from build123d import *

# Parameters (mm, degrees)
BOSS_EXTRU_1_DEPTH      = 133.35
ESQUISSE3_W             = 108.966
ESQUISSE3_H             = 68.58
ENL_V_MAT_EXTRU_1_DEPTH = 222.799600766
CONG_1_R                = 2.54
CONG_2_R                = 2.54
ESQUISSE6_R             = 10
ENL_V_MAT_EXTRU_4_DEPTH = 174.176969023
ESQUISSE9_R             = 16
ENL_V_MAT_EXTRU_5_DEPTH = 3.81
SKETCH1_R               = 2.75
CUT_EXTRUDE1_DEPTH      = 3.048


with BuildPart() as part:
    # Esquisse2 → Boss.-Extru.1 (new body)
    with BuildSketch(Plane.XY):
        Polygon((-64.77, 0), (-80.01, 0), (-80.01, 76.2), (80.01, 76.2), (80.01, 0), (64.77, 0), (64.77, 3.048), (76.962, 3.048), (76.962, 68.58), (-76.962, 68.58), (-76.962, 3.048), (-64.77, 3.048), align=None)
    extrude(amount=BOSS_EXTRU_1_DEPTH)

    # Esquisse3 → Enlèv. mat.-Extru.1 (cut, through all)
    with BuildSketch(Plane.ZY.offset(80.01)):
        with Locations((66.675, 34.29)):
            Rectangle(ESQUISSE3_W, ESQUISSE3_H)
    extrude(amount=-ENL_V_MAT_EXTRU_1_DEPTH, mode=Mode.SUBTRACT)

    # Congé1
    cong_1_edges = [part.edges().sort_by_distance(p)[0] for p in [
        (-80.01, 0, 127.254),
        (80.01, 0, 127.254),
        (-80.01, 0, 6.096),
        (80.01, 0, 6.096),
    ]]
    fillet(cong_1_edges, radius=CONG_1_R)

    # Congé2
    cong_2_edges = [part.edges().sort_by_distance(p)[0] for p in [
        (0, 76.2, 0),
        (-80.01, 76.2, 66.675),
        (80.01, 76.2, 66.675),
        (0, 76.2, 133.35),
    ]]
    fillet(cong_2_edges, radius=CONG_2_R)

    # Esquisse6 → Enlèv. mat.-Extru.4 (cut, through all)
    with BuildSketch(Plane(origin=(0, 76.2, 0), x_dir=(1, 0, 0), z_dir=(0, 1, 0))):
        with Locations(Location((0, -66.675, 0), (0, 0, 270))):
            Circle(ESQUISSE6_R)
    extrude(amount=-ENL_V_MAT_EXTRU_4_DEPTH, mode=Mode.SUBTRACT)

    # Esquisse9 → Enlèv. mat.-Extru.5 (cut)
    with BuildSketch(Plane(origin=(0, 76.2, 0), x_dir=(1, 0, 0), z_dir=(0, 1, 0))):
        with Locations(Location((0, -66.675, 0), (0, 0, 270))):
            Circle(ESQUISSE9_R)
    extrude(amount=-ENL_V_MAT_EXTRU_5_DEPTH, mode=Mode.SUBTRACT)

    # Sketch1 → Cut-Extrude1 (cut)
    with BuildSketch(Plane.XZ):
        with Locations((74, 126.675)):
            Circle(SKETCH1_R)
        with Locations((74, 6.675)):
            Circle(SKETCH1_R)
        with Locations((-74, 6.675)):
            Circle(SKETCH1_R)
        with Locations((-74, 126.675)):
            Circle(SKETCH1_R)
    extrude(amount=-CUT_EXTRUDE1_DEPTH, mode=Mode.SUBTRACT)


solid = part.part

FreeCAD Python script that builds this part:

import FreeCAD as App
import Part
import Sketcher

V = App.Vector
Q = App.Units.Quantity


def edges_at(feature, points):
    """Names of the edges that pass closest to the given points."""
    edges = feature.Shape.Edges
    near = lambda p: min(range(len(edges)), key=lambda i: edges[i].distToShape(Part.Vertex(*p))[0])
    return sorted({f"Edge{near(p) + 1}" for p in points})


def add_polygon(sketch, points):
    """Adds a closed chain of lines whose ends are joined by coincident constraints."""
    first, n = sketch.GeometryCount, len(points)
    for a, b in zip(points, points[1:] + points[:1]):
        sketch.addGeometry(Part.LineSegment(App.Vector(*a, 0), App.Vector(*b, 0)), False)
    for i in range(n):
        sketch.addConstraint(Sketcher.Constraint("Coincident", first + i, 2, first + (i + 1) % n, 1))

doc = App.newDocument("Part")
body = doc.addObject("PartDesign::Body", "Body")

sketch1 = body.newObject("Sketcher::SketchObject", "Sketch")
sketch1.AttachmentSupport = (doc.getObject("XY_Plane"), [""])
sketch1.MapMode = "FlatFace"
add_polygon(sketch1, [(-80.01, 0), (-64.77, 0), (-64.77, 3.048), (-76.962, 3.048), (-76.962, 68.58), (76.962, 68.58), (76.962, 3.048), (64.77, 3.048), (64.77, 0), (80.01, 0), (80.01, 76.2), (-80.01, 76.2)])
sketch1.addConstraint([
    Sketcher.Constraint("Horizontal", 0),
    Sketcher.Constraint("Vertical", 1),
    Sketcher.Constraint("Horizontal", 2),
    Sketcher.Constraint("Vertical", 3),
    Sketcher.Constraint("Horizontal", 4),
    Sketcher.Constraint("Vertical", 5),
    Sketcher.Constraint("Horizontal", 6),
    Sketcher.Constraint("Vertical", 7),
    Sketcher.Constraint("Horizontal", 8),
    Sketcher.Constraint("Vertical", 9),
    Sketcher.Constraint("Horizontal", 10),
    Sketcher.Constraint("Vertical", 11),
    Sketcher.Constraint("Symmetric", 0, 2, 7, 2, -1, 1),
    Sketcher.Constraint("Symmetric", 2, 2, 5, 2, -2),
    Sketcher.Constraint("Symmetric", 8, 2, 11, 2, -2),
    Sketcher.Constraint("DistanceY", 9, 1, 9, 2, Q("3 in")),
    Sketcher.Constraint("DistanceX", 0, 1, 0, 2, Q("0.6 in")),
    Sketcher.Constraint("DistanceX", 10, 2, 10, 1, Q("6.3 in")),
    Sketcher.Constraint("DistanceX", 2, 2, 2, 1, Q("0.48 in")),
    Sketcher.Constraint("DistanceY", 1, 1, 1, 2, Q("0.12 in")),
    Sketcher.Constraint("DistanceY", 3, 1, 3, 2, Q("2.58 in")),
])
pad1 = body.newObject("PartDesign::Pad", "Pad")
pad1.Profile = sketch1
pad1.Length = Q("5.25 in")

sketch2 = body.newObject("Sketcher::SketchObject", "Sketch001")
sketch2.AttachmentSupport = (doc.getObject("YZ_Plane"), [""])
sketch2.MapMode = "FlatFace"
sketch2.AttachmentOffset = App.Placement(V(0, 0, -3.15 * 25.4), App.Rotation())
add_polygon(sketch2, [(68.58, 12.192), (0, 12.192), (0, 121.158), (68.58, 121.158)])
sketch2.addConstraint([
    Sketcher.Constraint("Horizontal", 0),
    Sketcher.Constraint("Vertical", 1),
    Sketcher.Constraint("Horizontal", 2),
    Sketcher.Constraint("Vertical", 3),
    Sketcher.Constraint("PointOnObject", 0, 2, -2),
    Sketcher.Constraint("DistanceX", 0, 2, 0, 1, Q("2.7 in")),
    Sketcher.Constraint("DistanceY", 1, 1, 1, 2, Q("4.29 in")),
    Sketcher.Constraint("DistanceY", -1, 1, 0, 2, Q("0.48 in")),
])
pocket1 = body.newObject("PartDesign::Pocket", "Pocket")
pocket1.Profile = sketch2
pocket1.Type = "ThroughAll"
pocket1.Reversed = True
doc.recompute()

fillet = body.newObject("PartDesign::Fillet", "Fillet")
fillet.Base = (pocket1, edges_at(pocket1, [
    (-80.01, 0, 127.254),
    (80.01, 0, 127.254),
    (-80.01, 0, 6.096),
    (80.01, 0, 6.096),
]))
fillet.Radius = Q("0.1 in")
doc.recompute()

fillet2 = body.newObject("PartDesign::Fillet", "Fillet001")
fillet2.Base = (fillet, edges_at(fillet, [
    (0, 76.2, 0),
    (-80.01, 76.2, 66.675),
    (80.01, 76.2, 66.675),
    (0, 76.2, 133.35),
]))
fillet2.Radius = Q("0.1 in")

sketch3 = body.newObject("Sketcher::SketchObject", "Sketch002")
sketch3.AttachmentSupport = (doc.getObject("XZ_Plane"), [""])
sketch3.MapMode = "FlatFace"
sketch3.AttachmentOffset = App.Placement(V(0, 0, -3 * 25.4), App.Rotation())
sketch3.addGeometry(Part.Circle(V(0, 66.675, 0), V(0, 0, 1), 10), False)
sketch3.addConstraint([
    Sketcher.Constraint("PointOnObject", 0, 3, -2),
    Sketcher.Constraint("Diameter", 0, Q("20 mm")),
    Sketcher.Constraint("DistanceY", -1, 1, 0, 3, Q("2.625 in")),
])
pocket2 = body.newObject("PartDesign::Pocket", "Pocket001")
pocket2.Profile = sketch3
pocket2.Type = "ThroughAll"
pocket2.Reversed = True

sketch4 = body.newObject("Sketcher::SketchObject", "Sketch003")
sketch4.AttachmentSupport = (doc.getObject("XZ_Plane"), [""])
sketch4.MapMode = "FlatFace"
sketch4.AttachmentOffset = App.Placement(V(0, 0, -3 * 25.4), App.Rotation())
sketch4.addGeometry(Part.Circle(V(0, 66.675, 0), V(0, 0, 1), 16), False)
sketch4.addConstraint([
    Sketcher.Constraint("PointOnObject", 0, 3, -2),
    Sketcher.Constraint("Diameter", 0, Q("32 mm")),
    Sketcher.Constraint("DistanceY", -1, 1, 0, 3, Q("2.625 in")),
])
pocket3 = body.newObject("PartDesign::Pocket", "Pocket002")
pocket3.Profile = sketch4
pocket3.Length = Q("0.15 in")
pocket3.Reversed = True

sketch5 = body.newObject("Sketcher::SketchObject", "Sketch004")
sketch5.AttachmentSupport = (doc.getObject("XZ_Plane"), [""])
sketch5.MapMode = "FlatFace"
sketch5.addGeometry([
    Part.Circle(V(74, 126.675, 0), V(0, 0, 1), 2.75),
    Part.Circle(V(74, 6.675, 0), V(0, 0, 1), 2.75),
    Part.Circle(V(-74, 6.675, 0), V(0, 0, 1), 2.75),
    Part.Circle(V(-74, 126.675, 0), V(0, 0, 1), 2.75),
], False)
sketch5.addConstraint([
    Sketcher.Constraint("Equal", 0, 1),
    Sketcher.Constraint("Equal", 1, 2),
    Sketcher.Constraint("Equal", 2, 3),
    Sketcher.Constraint("Symmetric", 1, 3, 2, 3, -2),
    Sketcher.Constraint("Symmetric", 0, 3, 3, 3, -2),
    Sketcher.Constraint("Vertical", 0, 3, 1, 3),
    Sketcher.Constraint("Diameter", 0, Q("5.5 mm")),
    Sketcher.Constraint("DistanceX", -1, 1, 0, 3, Q("74 mm")),
    Sketcher.Constraint("DistanceY", -1, 1, 0, 3, Q("126.675 mm")),
    Sketcher.Constraint("DistanceY", -1, 1, 1, 3, Q("6.675 mm")),
])
pocket4 = body.newObject("PartDesign::Pocket", "Pocket003")
pocket4.Profile = sketch5
pocket4.Length = Q("0.12 in")

doc.recompute()
